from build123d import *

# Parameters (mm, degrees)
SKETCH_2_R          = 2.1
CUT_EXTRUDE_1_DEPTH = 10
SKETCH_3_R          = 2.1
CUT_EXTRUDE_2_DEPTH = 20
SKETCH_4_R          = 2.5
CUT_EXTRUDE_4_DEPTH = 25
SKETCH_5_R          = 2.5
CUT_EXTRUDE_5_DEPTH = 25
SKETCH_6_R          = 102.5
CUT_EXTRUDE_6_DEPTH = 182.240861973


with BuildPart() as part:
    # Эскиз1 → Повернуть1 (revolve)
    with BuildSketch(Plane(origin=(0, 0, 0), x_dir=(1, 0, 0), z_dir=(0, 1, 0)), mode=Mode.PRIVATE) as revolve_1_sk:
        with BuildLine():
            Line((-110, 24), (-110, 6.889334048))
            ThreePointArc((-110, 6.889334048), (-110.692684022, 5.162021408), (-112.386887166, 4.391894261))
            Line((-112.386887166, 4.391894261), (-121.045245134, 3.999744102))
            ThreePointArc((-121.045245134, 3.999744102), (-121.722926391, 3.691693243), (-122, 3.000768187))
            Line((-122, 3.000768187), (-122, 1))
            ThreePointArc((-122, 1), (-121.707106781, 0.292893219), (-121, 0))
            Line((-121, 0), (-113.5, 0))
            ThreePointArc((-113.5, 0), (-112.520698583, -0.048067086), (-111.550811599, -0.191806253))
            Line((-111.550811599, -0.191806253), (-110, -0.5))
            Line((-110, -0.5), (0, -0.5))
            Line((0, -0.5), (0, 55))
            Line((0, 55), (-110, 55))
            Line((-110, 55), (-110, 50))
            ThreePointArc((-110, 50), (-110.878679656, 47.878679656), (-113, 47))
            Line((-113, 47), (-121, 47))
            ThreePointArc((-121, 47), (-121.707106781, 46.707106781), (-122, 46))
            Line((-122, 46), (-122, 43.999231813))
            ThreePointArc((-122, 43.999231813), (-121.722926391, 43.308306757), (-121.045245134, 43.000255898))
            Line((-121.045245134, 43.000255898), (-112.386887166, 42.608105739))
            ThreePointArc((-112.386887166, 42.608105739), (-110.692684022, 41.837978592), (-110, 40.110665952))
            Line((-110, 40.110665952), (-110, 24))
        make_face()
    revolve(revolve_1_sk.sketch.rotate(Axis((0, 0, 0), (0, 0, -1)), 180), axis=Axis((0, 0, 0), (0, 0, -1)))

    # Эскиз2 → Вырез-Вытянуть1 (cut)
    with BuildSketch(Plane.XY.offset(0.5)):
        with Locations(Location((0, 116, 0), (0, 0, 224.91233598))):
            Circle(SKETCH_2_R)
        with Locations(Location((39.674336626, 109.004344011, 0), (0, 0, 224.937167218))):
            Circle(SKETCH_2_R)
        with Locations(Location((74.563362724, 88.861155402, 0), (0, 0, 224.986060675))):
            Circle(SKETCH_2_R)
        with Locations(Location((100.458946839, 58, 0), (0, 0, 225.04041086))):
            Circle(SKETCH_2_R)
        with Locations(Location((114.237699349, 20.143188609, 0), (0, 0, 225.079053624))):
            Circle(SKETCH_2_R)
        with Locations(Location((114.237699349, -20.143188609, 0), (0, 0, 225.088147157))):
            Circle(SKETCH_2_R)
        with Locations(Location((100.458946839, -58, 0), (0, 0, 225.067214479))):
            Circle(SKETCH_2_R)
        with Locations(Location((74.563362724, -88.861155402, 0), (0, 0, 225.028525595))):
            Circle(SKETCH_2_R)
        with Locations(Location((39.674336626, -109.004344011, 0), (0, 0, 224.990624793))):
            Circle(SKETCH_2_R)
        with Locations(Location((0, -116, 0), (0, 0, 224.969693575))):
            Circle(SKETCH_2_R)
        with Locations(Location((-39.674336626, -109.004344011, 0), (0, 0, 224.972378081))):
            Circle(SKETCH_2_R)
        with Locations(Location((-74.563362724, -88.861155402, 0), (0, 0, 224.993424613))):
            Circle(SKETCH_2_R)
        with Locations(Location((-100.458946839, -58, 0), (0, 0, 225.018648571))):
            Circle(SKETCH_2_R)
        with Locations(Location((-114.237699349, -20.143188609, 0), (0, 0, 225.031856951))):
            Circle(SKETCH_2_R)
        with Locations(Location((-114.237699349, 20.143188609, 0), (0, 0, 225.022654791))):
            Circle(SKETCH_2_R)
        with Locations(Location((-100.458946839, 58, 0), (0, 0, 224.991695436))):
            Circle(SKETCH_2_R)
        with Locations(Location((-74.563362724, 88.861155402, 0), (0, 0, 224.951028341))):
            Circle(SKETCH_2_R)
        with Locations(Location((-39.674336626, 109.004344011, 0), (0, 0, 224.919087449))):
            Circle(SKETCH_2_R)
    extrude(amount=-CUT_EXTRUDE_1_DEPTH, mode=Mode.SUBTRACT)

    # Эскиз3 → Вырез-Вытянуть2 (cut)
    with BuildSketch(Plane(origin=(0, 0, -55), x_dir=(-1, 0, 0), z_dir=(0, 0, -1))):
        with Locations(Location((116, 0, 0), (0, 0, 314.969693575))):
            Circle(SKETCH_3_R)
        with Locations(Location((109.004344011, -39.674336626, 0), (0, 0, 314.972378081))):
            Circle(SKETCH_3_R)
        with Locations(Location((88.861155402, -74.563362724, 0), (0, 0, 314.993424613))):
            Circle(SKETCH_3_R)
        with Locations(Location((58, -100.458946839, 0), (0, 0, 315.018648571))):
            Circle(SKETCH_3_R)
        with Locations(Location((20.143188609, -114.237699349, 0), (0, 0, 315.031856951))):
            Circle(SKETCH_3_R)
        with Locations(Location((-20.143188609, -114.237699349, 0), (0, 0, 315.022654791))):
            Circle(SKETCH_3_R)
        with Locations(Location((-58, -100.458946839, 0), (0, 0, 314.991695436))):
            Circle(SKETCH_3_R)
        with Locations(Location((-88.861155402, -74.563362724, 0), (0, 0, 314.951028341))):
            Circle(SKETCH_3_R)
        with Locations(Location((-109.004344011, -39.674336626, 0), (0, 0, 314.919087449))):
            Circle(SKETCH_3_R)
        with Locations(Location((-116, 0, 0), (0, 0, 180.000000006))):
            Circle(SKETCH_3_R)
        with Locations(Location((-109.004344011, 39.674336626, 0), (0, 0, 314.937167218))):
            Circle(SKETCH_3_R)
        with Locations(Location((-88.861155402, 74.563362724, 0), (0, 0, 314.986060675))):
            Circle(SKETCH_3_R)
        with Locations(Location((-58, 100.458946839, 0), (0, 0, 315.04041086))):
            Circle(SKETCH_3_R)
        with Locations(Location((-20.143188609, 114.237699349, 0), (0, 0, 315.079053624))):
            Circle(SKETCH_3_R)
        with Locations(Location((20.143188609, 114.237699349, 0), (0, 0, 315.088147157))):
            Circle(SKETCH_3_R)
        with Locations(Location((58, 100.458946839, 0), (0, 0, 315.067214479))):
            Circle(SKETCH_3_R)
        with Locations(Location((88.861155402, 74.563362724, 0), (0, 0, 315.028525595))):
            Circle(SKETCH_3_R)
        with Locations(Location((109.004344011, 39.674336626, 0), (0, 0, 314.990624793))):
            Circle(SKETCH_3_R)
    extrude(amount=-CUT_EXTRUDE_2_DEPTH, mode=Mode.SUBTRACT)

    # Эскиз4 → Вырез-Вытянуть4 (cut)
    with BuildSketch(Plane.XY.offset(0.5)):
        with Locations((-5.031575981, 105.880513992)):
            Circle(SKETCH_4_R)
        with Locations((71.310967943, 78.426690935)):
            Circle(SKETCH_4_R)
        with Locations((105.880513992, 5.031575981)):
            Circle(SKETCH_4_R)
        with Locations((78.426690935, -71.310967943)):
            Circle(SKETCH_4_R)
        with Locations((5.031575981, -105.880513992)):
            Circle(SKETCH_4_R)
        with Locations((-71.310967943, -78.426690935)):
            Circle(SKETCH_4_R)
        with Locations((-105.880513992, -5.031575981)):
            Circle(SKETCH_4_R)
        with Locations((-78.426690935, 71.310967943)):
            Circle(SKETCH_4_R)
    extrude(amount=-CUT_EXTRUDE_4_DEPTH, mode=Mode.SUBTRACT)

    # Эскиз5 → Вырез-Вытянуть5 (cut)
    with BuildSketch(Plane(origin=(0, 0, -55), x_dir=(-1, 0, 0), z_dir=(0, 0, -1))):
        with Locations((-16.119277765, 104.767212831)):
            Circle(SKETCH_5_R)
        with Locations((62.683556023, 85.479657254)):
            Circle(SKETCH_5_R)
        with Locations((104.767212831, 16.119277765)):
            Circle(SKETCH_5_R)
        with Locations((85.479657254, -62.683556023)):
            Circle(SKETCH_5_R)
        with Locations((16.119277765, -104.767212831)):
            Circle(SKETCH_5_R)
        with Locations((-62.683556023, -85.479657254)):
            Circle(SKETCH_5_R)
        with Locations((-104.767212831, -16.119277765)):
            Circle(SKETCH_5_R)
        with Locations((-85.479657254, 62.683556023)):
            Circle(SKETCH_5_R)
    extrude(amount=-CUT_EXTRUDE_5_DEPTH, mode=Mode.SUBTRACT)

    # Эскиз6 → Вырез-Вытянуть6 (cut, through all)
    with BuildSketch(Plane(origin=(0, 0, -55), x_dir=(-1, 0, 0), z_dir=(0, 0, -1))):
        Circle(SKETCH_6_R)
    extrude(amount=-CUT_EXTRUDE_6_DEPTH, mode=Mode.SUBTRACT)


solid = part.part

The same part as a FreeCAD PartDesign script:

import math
import FreeCAD as App
import Part
import Sketcher

V = App.Vector

doc = App.newDocument("Part")
body = doc.addObject("PartDesign::Body", "Body")

# Sketch on XZ plane
sketch1 = doc.addObject("Sketcher::SketchObject", "Sketch")
body.addObject(sketch1)
sketch1.AttachmentSupport = (doc.XZ_Plane, [""])
sketch1.MapMode = "FlatFace"
sketch1.addGeometry([
    Part.ArcOfCircle(Part.Circle(V(-112.5, -6.9, 0), V(0, 0, 1), 2.5), math.radians(0), math.radians(87)),  # 0
    Part.LineSegment(V(-112.4, -4.4, 0), V(-121, -4, 0)),  # 1
    Part.ArcOfCircle(Part.Circle(V(-121, -3, 0), V(0, 0, 1), 1), math.radians(-180), math.radians(-93)),  # 2
    Part.LineSegment(V(-122, -3, 0), V(-122, -1, 0)),  # 3
    Part.ArcOfCircle(Part.Circle(V(-121, -1, 0), V(0, 0, 1), 1), math.radians(90), math.radians(180)),  # 4
    Part.LineSegment(V(-121, 0, 0), V(-113.5, 0, 0)),  # 5
    Part.ArcOfCircle(Part.Circle(V(-113.5, 10, 0), V(0, 0, 1), 10), math.radians(-90), math.radians(-78.76)),  # 6
    Part.LineSegment(V(-111.6, 0.2, 0), V(-110, 0.5, 0)),  # 7
    Part.LineSegment(V(-110, 0.5, 0), V(0, 0.5, 0)),  # 8
    Part.LineSegment(V(0, 0.5, 0), V(0, -55, 0)),  # 9
    Part.LineSegment(V(0, -55, 0), V(-110, -55, 0)),  # 10
    Part.LineSegment(V(-110, -55, 0), V(-110, -50, 0)),  # 11
    Part.ArcOfCircle(Part.Circle(V(-113, -50, 0), V(0, 0, 1), 3), math.radians(0), math.radians(90)),  # 12
    Part.LineSegment(V(-113, -47, 0), V(-121, -47, 0)),  # 13
    Part.ArcOfCircle(Part.Circle(V(-121, -46, 0), V(0, 0, 1), 1), math.radians(-180), math.radians(-90)),  # 14
    Part.LineSegment(V(-122, -46, 0), V(-122, -44, 0)),  # 15
    Part.ArcOfCircle(Part.Circle(V(-121, -44, 0), V(0, 0, 1), 1), math.radians(93), math.radians(180)),  # 16
    Part.LineSegment(V(-121, -43, 0), V(-112.4, -42.6, 0)),  # 17
    Part.ArcOfCircle(Part.Circle(V(-112.5, -40.1, 0), V(0, 0, 1), 2.5), math.radians(-87), math.radians(0)),  # 18
    Part.LineSegment(V(-110, -40.1, 0), V(-110, -6.9, 0)),  # 19
], False)
sketch1.addConstraint([
    Sketcher.Constraint("Tangent", 0, 2, 1, 1),
    Sketcher.Constraint("Tangent", 1, 2, 2, 2),
    Sketcher.Constraint("Tangent", 2, 1, 3, 1),
    Sketcher.Constraint("Tangent", 3, 2, 4, 2),
    Sketcher.Constraint("Tangent", 4, 1, 5, 1),
    Sketcher.Constraint("Tangent", 5, 2, 6, 1),
    Sketcher.Constraint("Tangent", 6, 2, 7, 1),
    Sketcher.Constraint("Coincident", 7, 2, 8, 1),
    Sketcher.Constraint("Coincident", 8, 2, 9, 1),
    Sketcher.Constraint("Coincident", 9, 2, 10, 1),
    Sketcher.Constraint("Coincident", 10, 2, 11, 1),
    Sketcher.Constraint("Tangent", 11, 2, 12, 1),
    Sketcher.Constraint("Tangent", 12, 2, 13, 1),
    Sketcher.Constraint("Tangent", 13, 2, 14, 2),
    Sketcher.Constraint("Tangent", 14, 1, 15, 1),
    Sketcher.Constraint("Tangent", 15, 2, 16, 2),
    Sketcher.Constraint("Tangent", 16, 1, 17, 1),
    Sketcher.Constraint("Tangent", 17, 2, 18, 1),
    Sketcher.Constraint("Tangent", 18, 2, 19, 1),
    Sketcher.Constraint("Tangent", 19, 2, 0, 1),
    Sketcher.Constraint("Vertical", 3),
    Sketcher.Constraint("Horizontal", 5),
    Sketcher.Constraint("Horizontal", 8),
    Sketcher.Constraint("Vertical", 9),
    Sketcher.Constraint("Horizontal", 10),
    Sketcher.Constraint("Vertical", 11),
    Sketcher.Constraint("Horizontal", 13),
    Sketcher.Constraint("Vertical", 15),
    Sketcher.Constraint("Vertical", 19),
    Sketcher.Constraint("Equal", 2, 4),
    Sketcher.Constraint("Equal", 4, 14),
    Sketcher.Constraint("Equal", 14, 16),
    Sketcher.Constraint("Equal", 0, 18),
    Sketcher.Constraint("PointOnObject", 4, 1, -1),
    Sketcher.Constraint("PointOnObject", 8, 2, -2),
    Sketcher.Constraint("Vertical", 4, 3, 14, 3),
    Sketcher.Constraint("Vertical", 7, 2, 10, 2),
    Sketcher.Constraint("Vertical", 1, 2, 16, 1),
    Sketcher.Constraint("Vertical", 11, 2, 18, 2),
    Sketcher.Constraint("Equal", 3, 15),
    Sketcher.Constraint("Radius", 2, 1.0),
    Sketcher.Constraint("Radius", 6, 10.0),
    Sketcher.Constraint("Radius", 12, 3.0),
    Sketcher.Constraint("Radius", 0, 2.5),
    Sketcher.Constraint("DistanceX", 8, 1, 8, 2, 110.0),
    Sketcher.Constraint("DistanceX", 13, 2, 13, 1, 8.0),
    Sketcher.Constraint("DistanceY", 11, 1, 11, 2, 5.0),
    Sketcher.Constraint("DistanceX", 5, 1, 5, 2, 7.5),
    Sketcher.Constraint("DistanceY", 9, 2, 9, 1, 55.5),
    Sketcher.Constraint("DistanceY", 12, 3, -1, 1, 50.0),
    Sketcher.Constraint("DistanceY", 3, 1, 3, 2, 2.000768),
    Sketcher.Constraint("DistanceY", 19, 1, 19, 2, 33.221332),
])
revolution = doc.addObject("PartDesign::Revolution", "Revolution")
body.addObject(revolution)
revolution.Profile = sketch1
revolution.ReferenceAxis = (sketch1, ["V_Axis"])
revolution.Angle = 360

# Sketch on XY plane
sketch2 = doc.addObject("Sketcher::SketchObject", "Sketch001")
body.addObject(sketch2)
sketch2.AttachmentSupport = (doc.XY_Plane, [""])
sketch2.MapMode = "FlatFace"
sketch2.AttachmentOffset = App.Placement(V(0, 0, 0.5), App.Rotation())
sketch2.addGeometry([
    Part.Circle(V(0, 116, 0), V(0, 0, 1), 2.1),  # 0
    Part.Circle(V(39.7, 109, 0), V(0, 0, 1), 2.1),  # 1
    Part.Circle(V(74.6, 88.9, 0), V(0, 0, 1), 2.1),  # 2
    Part.Circle(V(100.5, 58, 0), V(0, 0, 1), 2.1),  # 3
    Part.Circle(V(114.2, 20.1, 0), V(0, 0, 1), 2.1),  # 4
    Part.Circle(V(114.2, -20.1, 0), V(0, 0, 1), 2.1),  # 5
    Part.Circle(V(100.5, -58, 0), V(0, 0, 1), 2.1),  # 6
    Part.Circle(V(74.6, -88.9, 0), V(0, 0, 1), 2.1),  # 7
    Part.Circle(V(39.7, -109, 0), V(0, 0, 1), 2.1),  # 8
    Part.Circle(V(0, -116, 0), V(0, 0, 1), 2.1),  # 9
    Part.Circle(V(-39.7, -109, 0), V(0, 0, 1), 2.1),  # 10
    Part.Circle(V(-74.6, -88.9, 0), V(0, 0, 1), 2.1),  # 11
    Part.Circle(V(-100.5, -58, 0), V(0, 0, 1), 2.1),  # 12
    Part.Circle(V(-114.2, -20.1, 0), V(0, 0, 1), 2.1),  # 13
    Part.Circle(V(-114.2, 20.1, 0), V(0, 0, 1), 2.1),  # 14
    Part.Circle(V(-100.5, 58, 0), V(0, 0, 1), 2.1),  # 15
    Part.Circle(V(-74.6, 88.9, 0), V(0, 0, 1), 2.1),  # 16
    Part.Circle(V(-39.7, 109, 0), V(0, 0, 1), 2.1),  # 17
], False)
sketch2.addConstraint([
    Sketcher.Constraint("Equal", 0, 1),
    Sketcher.Constraint("Equal", 1, 2),
    Sketcher.Constraint("Equal", 2, 3),
    Sketcher.Constraint("Equal", 3, 4),
    Sketcher.Constraint("Equal", 4, 5),
    Sketcher.Constraint("Equal", 5, 6),
    Sketcher.Constraint("Equal", 6, 7),
    Sketcher.Constraint("Equal", 7, 8),
    Sketcher.Constraint("Equal", 8, 9),
    Sketcher.Constraint("Equal", 9, 10),
    Sketcher.Constraint("Equal", 10, 11),
    Sketcher.Constraint("Equal", 11, 12),
    Sketcher.Constraint("Equal", 12, 13),
    Sketcher.Constraint("Equal", 13, 14),
    Sketcher.Constraint("Equal", 14, 15),
    Sketcher.Constraint("Equal", 15, 16),
    Sketcher.Constraint("Equal", 16, 17),
    Sketcher.Constraint("Symmetric", 0, 3, 9, 3, -1, 1),
    Sketcher.Constraint("Symmetric", 1, 3, 10, 3, -1, 1),
    Sketcher.Constraint("Symmetric", 2, 3, 11, 3, -1, 1),
    Sketcher.Constraint("Symmetric", 3, 3, 12, 3, -1, 1),
    Sketcher.Constraint("Symmetric", 4, 3, 13, 3, -1, 1),
    Sketcher.Constraint("Symmetric", 5, 3, 14, 3, -1, 1),
    Sketcher.Constraint("Symmetric", 6, 3, 15, 3, -1, 1),
    Sketcher.Constraint("Symmetric", 7, 3, 16, 3, -1, 1),
    Sketcher.Constraint("Symmetric", 8, 3, 17, 3, -1, 1),
    Sketcher.Constraint("Symmetric", 8, 3, 10, 3, -2),
    Sketcher.Constraint("Symmetric", 7, 3, 11, 3, -2),
    Sketcher.Constraint("Symmetric", 6, 3, 12, 3, -2),
    Sketcher.Constraint("Symmetric", 5, 3, 13, 3, -2),
    Sketcher.Constraint("PointOnObject", 0, 3, -2),
    Sketcher.Constraint("Diameter", 0, 4.2),
    Sketcher.Constraint("DistanceY", -1, 1, 0, 3, 116.0),
    Sketcher.Constraint("DistanceY", -1, 1, 3, 3, 58.0),
    Sketcher.Constraint("DistanceX", -1, 1, 4, 3, 114.237699),
    Sketcher.Constraint("DistanceX", 10, 3, 7, 3, 114.237699),
    Sketcher.Constraint("DistanceY", -1, 1, 4, 3, 20.143189),
    Sketcher.Constraint("DistanceY", 2, 3, 1, 3, 20.143189),
    Sketcher.Constraint("DistanceX", 1, 3, 3, 3, 60.78461),
    Sketcher.Constraint("DistanceY", 7, 3, 2, 3, 177.722311),
    Sketcher.Constraint("DistanceX", -1, 1, 1, 3, 39.674337),
])
pocket1 = doc.addObject("PartDesign::Pocket", "Pocket")
body.addObject(pocket1)
pocket1.Profile = sketch2
pocket1.Length = 10

# Sketch on XY plane
sketch3 = doc.addObject("Sketcher::SketchObject", "Sketch002")
body.addObject(sketch3)
sketch3.AttachmentSupport = (doc.XY_Plane, [""])
sketch3.MapMode = "FlatFace"
sketch3.AttachmentOffset = App.Placement(V(0, 0, -55), App.Rotation())
sketch3.addGeometry([
    Part.Circle(V(-116, 0, 0), V(0, 0, 1), 2.1),  # 0
    Part.Circle(V(-109, -39.7, 0), V(0, 0, 1), 2.1),  # 1
    Part.Circle(V(-88.9, -74.6, 0), V(0, 0, 1), 2.1),  # 2
    Part.Circle(V(-58, -100.5, 0), V(0, 0, 1), 2.1),  # 3
    Part.Circle(V(-20.1, -114.2, 0), V(0, 0, 1), 2.1),  # 4
    Part.Circle(V(20.1, -114.2, 0), V(0, 0, 1), 2.1),  # 5
    Part.Circle(V(58, -100.5, 0), V(0, 0, 1), 2.1),  # 6
    Part.Circle(V(88.9, -74.6, 0), V(0, 0, 1), 2.1),  # 7
    Part.Circle(V(109, -39.7, 0), V(0, 0, 1), 2.1),  # 8
    Part.Circle(V(116, 0, 0), V(0, 0, 1), 2.1),  # 9
    Part.Circle(V(109, 39.7, 0), V(0, 0, 1), 2.1),  # 10
    Part.Circle(V(88.9, 74.6, 0), V(0, 0, 1), 2.1),  # 11
    Part.Circle(V(58, 100.5, 0), V(0, 0, 1), 2.1),  # 12
    Part.Circle(V(20.1, 114.2, 0), V(0, 0, 1), 2.1),  # 13
    Part.Circle(V(-20.1, 114.2, 0), V(0, 0, 1), 2.1),  # 14
    Part.Circle(V(-58, 100.5, 0), V(0, 0, 1), 2.1),  # 15
    Part.Circle(V(-88.9, 74.6, 0), V(0, 0, 1), 2.1),  # 16
    Part.Circle(V(-109, 39.7, 0), V(0, 0, 1), 2.1),  # 17
], False)
sketch3.addConstraint([
    Sketcher.Constraint("Equal", 0, 1),
    Sketcher.Constraint("Equal", 1, 2),
    Sketcher.Constraint("Equal", 2, 3),
    Sketcher.Constraint("Equal", 3, 4),
    Sketcher.Constraint("Equal", 4, 5),
    Sketcher.Constraint("Equal", 5, 6),
    Sketcher.Constraint("Equal", 6, 7),
    Sketcher.Constraint("Equal", 7, 8),
    Sketcher.Constraint("Equal", 8, 9),
    Sketcher.Constraint("Equal", 9, 10),
    Sketcher.Constraint("Equal", 10, 11),
    Sketcher.Constraint("Equal", 11, 12),
    Sketcher.Constraint("Equal", 12, 13),
    Sketcher.Constraint("Equal", 13, 14),
    Sketcher.Constraint("Equal", 14, 15),
    Sketcher.Constraint("Equal", 15, 16),
    Sketcher.Constraint("Equal", 16, 17),
    Sketcher.Constraint("Symmetric", 0, 3, 9, 3, -1, 1),
    Sketcher.Constraint("Symmetric", 1, 3, 10, 3, -1, 1),
    Sketcher.Constraint("Symmetric", 2, 3, 11, 3, -1, 1),
    Sketcher.Constraint("Symmetric", 3, 3, 12, 3, -1, 1),
    Sketcher.Constraint("Symmetric", 4, 3, 13, 3, -1, 1),
    Sketcher.Constraint("Symmetric", 5, 3, 14, 3, -1, 1),
    Sketcher.Constraint("Symmetric", 6, 3, 15, 3, -1, 1),
    Sketcher.Constraint("Symmetric", 7, 3, 16, 3, -1, 1),
    Sketcher.Constraint("Symmetric", 8, 3, 17, 3, -1, 1),
    Sketcher.Constraint("Symmetric", 4, 3, 5, 3, -2),
    Sketcher.Constraint("Symmetric", 3, 3, 6, 3, -2),
    Sketcher.Constraint("Symmetric", 2, 3, 7, 3, -2),
    Sketcher.Constraint("Symmetric", 1, 3, 8, 3, -2),
    Sketcher.Constraint("PointOnObject", 0, 3, -1),
    Sketcher.Constraint("Diameter", 0, 4.2),
    Sketcher.Constraint("DistanceX", 0, 3, -1, 1, 116.0),
    Sketcher.Constraint("DistanceX", 3, 3, -1, 1, 58.0),
    Sketcher.Constraint("DistanceY", 4, 3, -1, 1, 114.237699),
    Sketcher.Constraint("DistanceY", 7, 3, 10, 3, 114.237699),
    Sketcher.Constraint("DistanceX", 4, 3, -1, 1, 20.143189),
    Sketcher.Constraint("DistanceX", 1, 3, 2, 3, 20.143189),
    Sketcher.Constraint("DistanceY", 3, 3, 1, 3, 60.78461),
    Sketcher.Constraint("DistanceX", 2, 3, 7, 3, 177.722311),
    Sketcher.Constraint("DistanceY", 1, 3, -1, 1, 39.674337),
])
pocket2 = doc.addObject("PartDesign::Pocket", "Pocket001")
body.addObject(pocket2)
pocket2.Profile = sketch3
pocket2.Length = 20
pocket2.Reversed = True

# Sketch on XY plane
sketch4 = doc.addObject("Sketcher::SketchObject", "Sketch003")
body.addObject(sketch4)
sketch4.AttachmentSupport = (doc.XY_Plane, [""])
sketch4.MapMode = "FlatFace"
sketch4.AttachmentOffset = App.Placement(V(0, 0, 0.5), App.Rotation())
sketch4.addGeometry([
    Part.Circle(V(-5, 105.9, 0), V(0, 0, 1), 2.5),  # 0
    Part.Circle(V(71.3, 78.4, 0), V(0, 0, 1), 2.5),  # 1
    Part.Circle(V(105.9, 5, 0), V(0, 0, 1), 2.5),  # 2
    Part.Circle(V(78.4, -71.3, 0), V(0, 0, 1), 2.5),  # 3
    Part.Circle(V(5, -105.9, 0), V(0, 0, 1), 2.5),  # 4
    Part.Circle(V(-71.3, -78.4, 0), V(0, 0, 1), 2.5),  # 5
    Part.Circle(V(-105.9, -5, 0), V(0, 0, 1), 2.5),  # 6
    Part.Circle(V(-78.4, 71.3, 0), V(0, 0, 1), 2.5),  # 7
], False)
sketch4.addConstraint([
    Sketcher.Constraint("Equal", 0, 1),
    Sketcher.Constraint("Equal", 1, 2),
    Sketcher.Constraint("Equal", 2, 3),
    Sketcher.Constraint("Equal", 3, 4),
    Sketcher.Constraint("Equal", 4, 5),
    Sketcher.Constraint("Equal", 5, 6),
    Sketcher.Constraint("Equal", 6, 7),
    Sketcher.Constraint("Symmetric", 0, 3, 4, 3, -1, 1),
    Sketcher.Constraint("Symmetric", 1, 3, 5, 3, -1, 1),
    Sketcher.Constraint("Symmetric", 2, 3, 6, 3, -1, 1),
    Sketcher.Constraint("Symmetric", 3, 3, 7, 3, -1, 1),
    Sketcher.Constraint("Diameter", 0, 5.0),
    Sketcher.Constraint("DistanceY", -1, 1, 1, 3, 78.426691),
    Sketcher.Constraint("DistanceX", -1, 1, 3, 3, 78.426691),
    Sketcher.Constraint("DistanceX", 0, 3, 2, 3, 110.91209),
    Sketcher.Constraint("DistanceY", 2, 3, 0, 3, 100.848938),
    Sketcher.Constraint("DistanceY", 3, 3, 1, 3, 149.737659),
    Sketcher.Constraint("DistanceY", 3, 3, 0, 3, 177.191482),
    Sketcher.Constraint("DistanceX", 4, 3, 2, 3, 100.848938),
    Sketcher.Constraint("DistanceX", 4, 3, 1, 3, 66.279392),
])
pocket3 = doc.addObject("PartDesign::Pocket", "Pocket002")
body.addObject(pocket3)
pocket3.Profile = sketch4
pocket3.Length = 25

# Sketch on XY plane
sketch5 = doc.addObject("Sketcher::SketchObject", "Sketch004")
body.addObject(sketch5)
sketch5.AttachmentSupport = (doc.XY_Plane, [""])
sketch5.MapMode = "FlatFace"
sketch5.AttachmentOffset = App.Placement(V(0, 0, -55), App.Rotation())
sketch5.addGeometry([
    Part.Circle(V(16.1, 104.8, 0), V(0, 0, 1), 2.5),  # 0
    Part.Circle(V(-62.7, 85.5, 0), V(0, 0, 1), 2.5),  # 1
    Part.Circle(V(-104.8, 16.1, 0), V(0, 0, 1), 2.5),  # 2
    Part.Circle(V(-85.5, -62.7, 0), V(0, 0, 1), 2.5),  # 3
    Part.Circle(V(-16.1, -104.8, 0), V(0, 0, 1), 2.5),  # 4
    Part.Circle(V(62.7, -85.5, 0), V(0, 0, 1), 2.5),  # 5
    Part.Circle(V(104.8, -16.1, 0), V(0, 0, 1), 2.5),  # 6
    Part.Circle(V(85.5, 62.7, 0), V(0, 0, 1), 2.5),  # 7
], False)
sketch5.addConstraint([
    Sketcher.Constraint("Equal", 0, 1),
    Sketcher.Constraint("Equal", 1, 2),
    Sketcher.Constraint("Equal", 2, 3),
    Sketcher.Constraint("Equal", 3, 4),
    Sketcher.Constraint("Equal", 4, 5),
    Sketcher.Constraint("Equal", 5, 6),
    Sketcher.Constraint("Equal", 6, 7),
    Sketcher.Constraint("Symmetric", 0, 3, 4, 3, -1, 1),
    Sketcher.Constraint("Symmetric", 1, 3, 5, 3, -1, 1),
    Sketcher.Constraint("Symmetric", 2, 3, 6, 3, -1, 1),
    Sketcher.Constraint("Symmetric", 3, 3, 7, 3, -1, 1),
    Sketcher.Constraint("Diameter", 0, 5.0),
    Sketcher.Constraint("DistanceX", 3, 3, 1, 3, 22.796101),
    Sketcher.Constraint("DistanceY", 5, 3, 3, 3, 22.796101),
    Sketcher.Constraint("DistanceY", 2, 3, 1, 3, 69.360379),
    Sketcher.Constraint("DistanceX", 2, 3, 0, 3, 120.886491),
    Sketcher.Constraint("DistanceY", 3, 3, 0, 3, 167.450769),
    Sketcher.Constraint("DistanceX", 3, 3, 4, 3, 69.360379),
    Sketcher.Constraint("DistanceX", -1, 1, 0, 3, 16.119278),
    Sketcher.Constraint("DistanceY", -1, 1, 0, 3, 104.767213),
])
pocket4 = doc.addObject("PartDesign::Pocket", "Pocket003")
body.addObject(pocket4)
pocket4.Profile = sketch5
pocket4.Length = 25
pocket4.Reversed = True

# Sketch on XY plane
sketch6 = doc.addObject("Sketcher::SketchObject", "Sketch005")
body.addObject(sketch6)
sketch6.AttachmentSupport = (doc.XY_Plane, [""])
sketch6.MapMode = "FlatFace"
sketch6.AttachmentOffset = App.Placement(V(0, 0, -55), App.Rotation())
sketch6.addGeometry(Part.Circle(V(0, 0, 0), V(0, 0, 1), 102), False)
sketch6.addConstraint([
    Sketcher.Constraint("Coincident", 0, 3, -1, 1),
    Sketcher.Constraint("Diameter", 0, 205.0),
])
pocket5 = doc.addObject("PartDesign::Pocket", "Pocket004")
body.addObject(pocket5)
pocket5.Profile = sketch6
pocket5.Type = "ThroughAll"
pocket5.Reversed = True

doc.recompute()
